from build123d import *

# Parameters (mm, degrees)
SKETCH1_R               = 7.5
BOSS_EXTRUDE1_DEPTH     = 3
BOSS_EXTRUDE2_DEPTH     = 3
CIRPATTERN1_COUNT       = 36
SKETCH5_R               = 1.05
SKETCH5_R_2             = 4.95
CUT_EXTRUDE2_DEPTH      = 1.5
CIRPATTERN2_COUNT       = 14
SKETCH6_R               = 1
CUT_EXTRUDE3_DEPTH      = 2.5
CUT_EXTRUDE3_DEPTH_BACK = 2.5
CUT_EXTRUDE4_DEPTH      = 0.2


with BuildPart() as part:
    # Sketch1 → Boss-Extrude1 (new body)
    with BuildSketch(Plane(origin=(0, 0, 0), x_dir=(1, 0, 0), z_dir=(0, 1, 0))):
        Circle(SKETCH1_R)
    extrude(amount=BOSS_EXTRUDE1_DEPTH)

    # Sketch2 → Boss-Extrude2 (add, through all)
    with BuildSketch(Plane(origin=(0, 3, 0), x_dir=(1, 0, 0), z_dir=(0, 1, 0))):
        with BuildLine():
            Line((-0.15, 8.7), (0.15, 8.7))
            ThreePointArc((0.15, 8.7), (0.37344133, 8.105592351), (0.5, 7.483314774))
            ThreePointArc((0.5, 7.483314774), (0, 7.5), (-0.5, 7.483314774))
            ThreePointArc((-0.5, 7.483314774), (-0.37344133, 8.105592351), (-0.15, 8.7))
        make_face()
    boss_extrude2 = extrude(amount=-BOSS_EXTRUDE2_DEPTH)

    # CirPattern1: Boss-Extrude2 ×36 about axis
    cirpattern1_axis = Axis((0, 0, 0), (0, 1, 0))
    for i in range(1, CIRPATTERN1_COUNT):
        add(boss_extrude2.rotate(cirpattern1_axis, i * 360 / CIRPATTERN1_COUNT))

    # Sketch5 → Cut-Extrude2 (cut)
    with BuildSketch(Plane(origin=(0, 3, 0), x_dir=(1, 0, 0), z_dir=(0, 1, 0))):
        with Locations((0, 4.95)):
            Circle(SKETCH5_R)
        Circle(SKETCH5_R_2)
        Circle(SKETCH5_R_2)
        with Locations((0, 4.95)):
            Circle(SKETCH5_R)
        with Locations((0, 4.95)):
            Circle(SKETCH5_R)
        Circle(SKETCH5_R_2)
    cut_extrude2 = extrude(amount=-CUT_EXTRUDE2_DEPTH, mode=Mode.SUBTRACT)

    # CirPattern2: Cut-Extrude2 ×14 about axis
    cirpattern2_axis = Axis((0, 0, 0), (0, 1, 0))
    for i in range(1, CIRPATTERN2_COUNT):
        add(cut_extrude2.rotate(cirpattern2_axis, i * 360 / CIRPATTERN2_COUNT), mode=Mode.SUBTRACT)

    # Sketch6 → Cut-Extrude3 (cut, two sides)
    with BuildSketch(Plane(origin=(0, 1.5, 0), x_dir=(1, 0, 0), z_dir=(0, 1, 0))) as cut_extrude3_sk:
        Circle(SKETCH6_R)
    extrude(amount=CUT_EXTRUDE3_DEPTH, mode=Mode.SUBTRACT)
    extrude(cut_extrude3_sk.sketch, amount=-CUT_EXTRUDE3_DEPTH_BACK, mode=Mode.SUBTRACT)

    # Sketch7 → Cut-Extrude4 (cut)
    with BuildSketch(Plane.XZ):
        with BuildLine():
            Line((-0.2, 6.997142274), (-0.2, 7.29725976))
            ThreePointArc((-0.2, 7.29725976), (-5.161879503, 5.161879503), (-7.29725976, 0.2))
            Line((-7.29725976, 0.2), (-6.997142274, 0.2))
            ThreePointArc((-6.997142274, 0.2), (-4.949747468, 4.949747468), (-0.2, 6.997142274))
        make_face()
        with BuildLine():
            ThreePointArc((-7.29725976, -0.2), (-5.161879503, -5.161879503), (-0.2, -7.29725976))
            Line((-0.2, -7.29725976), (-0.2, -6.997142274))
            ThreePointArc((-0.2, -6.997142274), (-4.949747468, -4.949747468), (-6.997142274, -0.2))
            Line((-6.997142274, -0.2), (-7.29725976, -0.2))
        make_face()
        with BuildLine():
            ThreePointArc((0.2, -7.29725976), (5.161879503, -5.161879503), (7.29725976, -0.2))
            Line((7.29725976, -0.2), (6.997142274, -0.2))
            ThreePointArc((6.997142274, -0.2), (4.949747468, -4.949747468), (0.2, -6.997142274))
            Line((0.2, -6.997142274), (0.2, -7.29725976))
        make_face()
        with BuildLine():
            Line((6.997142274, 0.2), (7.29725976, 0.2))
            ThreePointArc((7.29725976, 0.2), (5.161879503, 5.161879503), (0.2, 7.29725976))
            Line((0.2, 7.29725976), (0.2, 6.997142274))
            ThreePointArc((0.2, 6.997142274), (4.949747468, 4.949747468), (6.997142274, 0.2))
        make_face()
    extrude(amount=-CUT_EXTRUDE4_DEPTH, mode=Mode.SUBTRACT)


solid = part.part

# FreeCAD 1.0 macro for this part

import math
import FreeCAD as App
import Part
import Sketcher
Q = App.Units.Quantity

doc = App.newDocument("Part")
body = doc.addObject("PartDesign::Body", "Body")

sketch1 = doc.addObject("Sketcher::SketchObject", "Sketch")
body.addObject(sketch1)
sketch1.AttachmentSupport = (doc.XZ_Plane, [""])
sketch1.MapMode = "FlatFace"
sketch1.addGeometry(Part.Circle(App.Vector(0, 0, 0), App.Vector(0, 0, 1), 8), False)
sketch1.addConstraint(Sketcher.Constraint("Coincident", 0, 3, -1, 1))
sketch1.addConstraint(Sketcher.Constraint("Diameter", 0, Q("15 mm")))
pad1 = doc.addObject("PartDesign::Pad", "Pad")
body.addObject(pad1)
pad1.Profile = sketch1
pad1.Length = 3
pad1.Reversed = True

sketch2 = doc.addObject("Sketcher::SketchObject", "Sketch001")
body.addObject(sketch2)
sketch2.AttachmentSupport = (doc.XZ_Plane, [""])
sketch2.MapMode = "FlatFace"
sketch2.AttachmentOffset = App.Placement(App.Vector(0, 0, -3), App.Rotation())
sketch2.addGeometry(Part.LineSegment(App.Vector(0.15, -8.7, 0), App.Vector(-0.15, -8.7, 0)), False)
sketch2.addGeometry(Part.ArcOfCircle(Part.Circle(App.Vector(3.47, -7, 0), App.Vector(0, 0, 1), 4), math.radians(-173.06), math.radians(-154.85)), False)
sketch2.addGeometry(Part.ArcOfCircle(Part.Circle(App.Vector(0, 0, 0), App.Vector(0, 0, 1), 7.5), math.radians(-93.82), math.radians(-86.18)), False)
sketch2.addGeometry(Part.ArcOfCircle(Part.Circle(App.Vector(-3.47, -7, 0), App.Vector(0, 0, 1), 4), math.radians(-25.15), math.radians(-6.94)), False)
sketch2.addConstraint(Sketcher.Constraint("Coincident", 0, 2, 1, 2))
sketch2.addConstraint(Sketcher.Constraint("Coincident", 1, 1, 2, 1))
sketch2.addConstraint(Sketcher.Constraint("Coincident", 2, 2, 3, 2))
sketch2.addConstraint(Sketcher.Constraint("Coincident", 3, 1, 0, 1))
sketch2.addConstraint(Sketcher.Constraint("Horizontal", 0))
sketch2.addConstraint(Sketcher.Constraint("Coincident", 2, 3, -1, 1))
sketch2.addConstraint(Sketcher.Constraint("Equal", 1, 3))
sketch2.addConstraint(Sketcher.Constraint("Symmetric", 1, 3, 3, 3, -2))
sketch2.addConstraint(Sketcher.Constraint("Radius", 1, Q("4 mm")))
sketch2.addConstraint(Sketcher.Constraint("Radius", 2, Q("7.5 mm")))
sketch2.addConstraint(Sketcher.Constraint("DistanceX", 0, 2, 0, 1, Q("0.3 mm")))
sketch2.addConstraint(Sketcher.Constraint("DistanceX", 1, 1, 2, 2, Q("1 mm")))
sketch2.addConstraint(Sketcher.Constraint("DistanceY", 0, 2, -1, 1, Q("8.7 mm")))
pad2 = doc.addObject("PartDesign::Pad", "Pad001")
body.addObject(pad2)
pad2.Profile = sketch2
pad2.Length = 3
doc.recompute()

polarpattern = doc.addObject("PartDesign::PolarPattern", "PolarPattern")
body.addObject(polarpattern)
polarpattern.Originals = [pad2]
polarpattern.Axis = (doc.Y_Axis, [""])
polarpattern.Angle = 360
polarpattern.Occurrences = 36
body.Tip = polarpattern

sketch3 = doc.addObject("Sketcher::SketchObject", "Sketch002")
body.addObject(sketch3)
sketch3.AttachmentSupport = (doc.XZ_Plane, [""])
sketch3.MapMode = "FlatFace"
sketch3.AttachmentOffset = App.Placement(App.Vector(0, 0, -3), App.Rotation())
sketch3.addGeometry(Part.ArcOfCircle(Part.Circle(App.Vector(0, -5, 0), App.Vector(0, 0, 1), 1.1), math.radians(174), math.radians(366)), False)
sketch3.addGeometry(Part.ArcOfCircle(Part.Circle(App.Vector(0, 0, 0), App.Vector(0, 0, 1), 5), math.radians(-78), math.radians(258)), False)
sketch3.addConstraint(Sketcher.Constraint("Coincident", 0, 1, 1, 2))
sketch3.addConstraint(Sketcher.Constraint("Coincident", 1, 1, 0, 2))
sketch3.addConstraint(Sketcher.Constraint("Coincident", 1, 3, -1, 1))
sketch3.addConstraint(Sketcher.Constraint("PointOnObject", 0, 3, -2))
sketch3.addConstraint(Sketcher.Constraint("Radius", 0, Q("1.05 mm")))
sketch3.addConstraint(Sketcher.Constraint("Radius", 1, Q("4.95 mm")))
sketch3.addConstraint(Sketcher.Constraint("DistanceY", 0, 3, -1, 1, Q("4.95 mm")))
pocket1 = doc.addObject("PartDesign::Pocket", "Pocket")
body.addObject(pocket1)
pocket1.Profile = sketch3
pocket1.Length = 1.5
pocket1.Reversed = True
doc.recompute()

polarpattern2 = doc.addObject("PartDesign::PolarPattern", "PolarPattern001")
body.addObject(polarpattern2)
polarpattern2.Originals = [pocket1]
polarpattern2.Axis = (doc.Y_Axis, [""])
polarpattern2.Angle = 360
polarpattern2.Occurrences = 14
body.Tip = polarpattern2

sketch4 = doc.addObject("Sketcher::SketchObject", "Sketch003")
body.addObject(sketch4)
sketch4.AttachmentSupport = (doc.XZ_Plane, [""])
sketch4.MapMode = "FlatFace"
sketch4.AttachmentOffset = App.Placement(App.Vector(0, 0, -1.5), App.Rotation())
sketch4.addGeometry(Part.Circle(App.Vector(0, 0, 0), App.Vector(0, 0, 1), 1), False)
sketch4.addConstraint(Sketcher.Constraint("Coincident", 0, 3, -1, 1))
sketch4.addConstraint(Sketcher.Constraint("Diameter", 0, Q("2 mm")))
pocket2 = doc.addObject("PartDesign::Pocket", "Pocket001")
body.addObject(pocket2)
pocket2.Profile = sketch4
pocket2.Type = "ThroughAll"
pocket2.Midplane = True

sketch5 = doc.addObject("Sketcher::SketchObject", "Sketch004")
body.addObject(sketch5)
sketch5.AttachmentSupport = (doc.XZ_Plane, [""])
sketch5.MapMode = "FlatFace"
sketch5.addGeometry(Part.LineSegment(App.Vector(-0.2, 7, 0), App.Vector(-0.2, 7.3, 0)), False)
sketch5.addGeometry(Part.ArcOfCircle(Part.Circle(App.Vector(0, 0, 0), App.Vector(0, 0, 1), 7.3), math.radians(92), math.radians(178)), False)
sketch5.addGeometry(Part.LineSegment(App.Vector(-7.3, 0.2, 0), App.Vector(-7, 0.2, 0)), False)
sketch5.addGeometry(Part.ArcOfCircle(Part.Circle(App.Vector(0, 0, 0), App.Vector(0, 0, 1), 7), math.radians(92), math.radians(178)), False)
sketch5.addGeometry(Part.ArcOfCircle(Part.Circle(App.Vector(0, 0, 0), App.Vector(0, 0, 1), 7.3), math.radians(-178), math.radians(-92)), False)
sketch5.addGeometry(Part.LineSegment(App.Vector(-0.2, -7.3, 0), App.Vector(-0.2, -7, 0)), False)
sketch5.addGeometry(Part.ArcOfCircle(Part.Circle(App.Vector(0, 0, 0), App.Vector(0, 0, 1), 7), math.radians(-178), math.radians(-92)), False)
sketch5.addGeometry(Part.LineSegment(App.Vector(-7, -0.2, 0), App.Vector(-7.3, -0.2, 0)), False)
sketch5.addGeometry(Part.ArcOfCircle(Part.Circle(App.Vector(0, 0, 0), App.Vector(0, 0, 1), 7.3), math.radians(-88), math.radians(-2)), False)
sketch5.addGeometry(Part.LineSegment(App.Vector(7.3, -0.2, 0), App.Vector(7, -0.2, 0)), False)
sketch5.addGeometry(Part.ArcOfCircle(Part.Circle(App.Vector(0, 0, 0), App.Vector(0, 0, 1), 7), math.radians(-88), math.radians(-2)), False)
sketch5.addGeometry(Part.LineSegment(App.Vector(0.2, -7, 0), App.Vector(0.2, -7.3, 0)), False)
sketch5.addGeometry(Part.LineSegment(App.Vector(7, 0.2, 0), App.Vector(7.3, 0.2, 0)), False)
sketch5.addGeometry(Part.ArcOfCircle(Part.Circle(App.Vector(0, 0, 0), App.Vector(0, 0, 1), 7.3), math.radians(2), math.radians(88)), False)
sketch5.addGeometry(Part.LineSegment(App.Vector(0.2, 7.3, 0), App.Vector(0.2, 7, 0)), False)
sketch5.addGeometry(Part.ArcOfCircle(Part.Circle(App.Vector(0, 0, 0), App.Vector(0, 0, 1), 7), math.radians(2), math.radians(88)), False)
sketch5.addConstraint(Sketcher.Constraint("Coincident", 0, 2, 1, 1))
sketch5.addConstraint(Sketcher.Constraint("Coincident", 1, 2, 2, 1))
sketch5.addConstraint(Sketcher.Constraint("Coincident", 2, 2, 3, 2))
sketch5.addConstraint(Sketcher.Constraint("Coincident", 3, 1, 0, 1))
sketch5.addConstraint(Sketcher.Constraint("Coincident", 4, 2, 5, 1))
sketch5.addConstraint(Sketcher.Constraint("Coincident", 5, 2, 6, 2))
sketch5.addConstraint(Sketcher.Constraint("Coincident", 6, 1, 7, 1))
sketch5.addConstraint(Sketcher.Constraint("Coincident", 7, 2, 4, 1))
sketch5.addConstraint(Sketcher.Constraint("Coincident", 8, 2, 9, 1))
sketch5.addConstraint(Sketcher.Constraint("Coincident", 9, 2, 10, 2))
sketch5.addConstraint(Sketcher.Constraint("Coincident", 10, 1, 11, 1))
sketch5.addConstraint(Sketcher.Constraint("Coincident", 11, 2, 8, 1))
sketch5.addConstraint(Sketcher.Constraint("Coincident", 12, 2, 13, 1))
sketch5.addConstraint(Sketcher.Constraint("Coincident", 13, 2, 14, 1))
sketch5.addConstraint(Sketcher.Constraint("Coincident", 14, 2, 15, 2))
sketch5.addConstraint(Sketcher.Constraint("Coincident", 15, 1, 12, 1))
sketch5.addConstraint(Sketcher.Constraint("Vertical", 0))
sketch5.addConstraint(Sketcher.Constraint("Horizontal", 2))
sketch5.addConstraint(Sketcher.Constraint("Vertical", 5))
sketch5.addConstraint(Sketcher.Constraint("Horizontal", 7))
sketch5.addConstraint(Sketcher.Constraint("Horizontal", 9))
sketch5.addConstraint(Sketcher.Constraint("Vertical", 11))
sketch5.addConstraint(Sketcher.Constraint("Horizontal", 12))
sketch5.addConstraint(Sketcher.Constraint("Vertical", 14))
sketch5.addConstraint(Sketcher.Constraint("Coincident", 1, 3, -1, 1))
sketch5.addConstraint(Sketcher.Constraint("Coincident", 3, 3, -1, 1))
sketch5.addConstraint(Sketcher.Constraint("Coincident", 4, 3, -1, 1))
sketch5.addConstraint(Sketcher.Constraint("Coincident", 6, 3, -1, 1))
sketch5.addConstraint(Sketcher.Constraint("Coincident", 8, 3, -1, 1))
sketch5.addConstraint(Sketcher.Constraint("Coincident", 10, 3, -1, 1))
sketch5.addConstraint(Sketcher.Constraint("Coincident", 13, 3, -1, 1))
sketch5.addConstraint(Sketcher.Constraint("Coincident", 15, 3, -1, 1))
sketch5.addConstraint(Sketcher.Constraint("Equal", 1, 4))
sketch5.addConstraint(Sketcher.Constraint("Equal", 3, 6))
sketch5.addConstraint(Sketcher.Constraint("Equal", 4, 8))
sketch5.addConstraint(Sketcher.Constraint("Equal", 6, 10))
sketch5.addConstraint(Sketcher.Constraint("Equal", 8, 13))
sketch5.addConstraint(Sketcher.Constraint("Equal", 10, 15))
sketch5.addConstraint(Sketcher.Constraint("Horizontal", 7, 2, 8, 2))
sketch5.addConstraint(Sketcher.Constraint("Horizontal", 5, 2, 10, 1))
sketch5.addConstraint(Sketcher.Constraint("Horizontal", 2, 2, 12, 2))
sketch5.addConstraint(Sketcher.Constraint("Horizontal", 0, 2, 13, 2))
sketch5.addConstraint(Sketcher.Constraint("Vertical", 3, 1, 4, 2))
sketch5.addConstraint(Sketcher.Constraint("Vertical", 2, 2, 6, 1))
sketch5.addConstraint(Sketcher.Constraint("Radius", 3, Q("7 mm")))
sketch5.addConstraint(Sketcher.Constraint("Radius", 1, Q("7.3 mm")))
sketch5.addConstraint(Sketcher.Constraint("DistanceX", 0, 2, -1, 1, Q("0.2 mm")))
sketch5.addConstraint(Sketcher.Constraint("DistanceY", -1, 1, 1, 2, Q("0.2 mm")))
pocket3 = doc.addObject("PartDesign::Pocket", "Pocket002")
body.addObject(pocket3)
pocket3.Profile = sketch5
pocket3.Length = 0.2

doc.recompute()
